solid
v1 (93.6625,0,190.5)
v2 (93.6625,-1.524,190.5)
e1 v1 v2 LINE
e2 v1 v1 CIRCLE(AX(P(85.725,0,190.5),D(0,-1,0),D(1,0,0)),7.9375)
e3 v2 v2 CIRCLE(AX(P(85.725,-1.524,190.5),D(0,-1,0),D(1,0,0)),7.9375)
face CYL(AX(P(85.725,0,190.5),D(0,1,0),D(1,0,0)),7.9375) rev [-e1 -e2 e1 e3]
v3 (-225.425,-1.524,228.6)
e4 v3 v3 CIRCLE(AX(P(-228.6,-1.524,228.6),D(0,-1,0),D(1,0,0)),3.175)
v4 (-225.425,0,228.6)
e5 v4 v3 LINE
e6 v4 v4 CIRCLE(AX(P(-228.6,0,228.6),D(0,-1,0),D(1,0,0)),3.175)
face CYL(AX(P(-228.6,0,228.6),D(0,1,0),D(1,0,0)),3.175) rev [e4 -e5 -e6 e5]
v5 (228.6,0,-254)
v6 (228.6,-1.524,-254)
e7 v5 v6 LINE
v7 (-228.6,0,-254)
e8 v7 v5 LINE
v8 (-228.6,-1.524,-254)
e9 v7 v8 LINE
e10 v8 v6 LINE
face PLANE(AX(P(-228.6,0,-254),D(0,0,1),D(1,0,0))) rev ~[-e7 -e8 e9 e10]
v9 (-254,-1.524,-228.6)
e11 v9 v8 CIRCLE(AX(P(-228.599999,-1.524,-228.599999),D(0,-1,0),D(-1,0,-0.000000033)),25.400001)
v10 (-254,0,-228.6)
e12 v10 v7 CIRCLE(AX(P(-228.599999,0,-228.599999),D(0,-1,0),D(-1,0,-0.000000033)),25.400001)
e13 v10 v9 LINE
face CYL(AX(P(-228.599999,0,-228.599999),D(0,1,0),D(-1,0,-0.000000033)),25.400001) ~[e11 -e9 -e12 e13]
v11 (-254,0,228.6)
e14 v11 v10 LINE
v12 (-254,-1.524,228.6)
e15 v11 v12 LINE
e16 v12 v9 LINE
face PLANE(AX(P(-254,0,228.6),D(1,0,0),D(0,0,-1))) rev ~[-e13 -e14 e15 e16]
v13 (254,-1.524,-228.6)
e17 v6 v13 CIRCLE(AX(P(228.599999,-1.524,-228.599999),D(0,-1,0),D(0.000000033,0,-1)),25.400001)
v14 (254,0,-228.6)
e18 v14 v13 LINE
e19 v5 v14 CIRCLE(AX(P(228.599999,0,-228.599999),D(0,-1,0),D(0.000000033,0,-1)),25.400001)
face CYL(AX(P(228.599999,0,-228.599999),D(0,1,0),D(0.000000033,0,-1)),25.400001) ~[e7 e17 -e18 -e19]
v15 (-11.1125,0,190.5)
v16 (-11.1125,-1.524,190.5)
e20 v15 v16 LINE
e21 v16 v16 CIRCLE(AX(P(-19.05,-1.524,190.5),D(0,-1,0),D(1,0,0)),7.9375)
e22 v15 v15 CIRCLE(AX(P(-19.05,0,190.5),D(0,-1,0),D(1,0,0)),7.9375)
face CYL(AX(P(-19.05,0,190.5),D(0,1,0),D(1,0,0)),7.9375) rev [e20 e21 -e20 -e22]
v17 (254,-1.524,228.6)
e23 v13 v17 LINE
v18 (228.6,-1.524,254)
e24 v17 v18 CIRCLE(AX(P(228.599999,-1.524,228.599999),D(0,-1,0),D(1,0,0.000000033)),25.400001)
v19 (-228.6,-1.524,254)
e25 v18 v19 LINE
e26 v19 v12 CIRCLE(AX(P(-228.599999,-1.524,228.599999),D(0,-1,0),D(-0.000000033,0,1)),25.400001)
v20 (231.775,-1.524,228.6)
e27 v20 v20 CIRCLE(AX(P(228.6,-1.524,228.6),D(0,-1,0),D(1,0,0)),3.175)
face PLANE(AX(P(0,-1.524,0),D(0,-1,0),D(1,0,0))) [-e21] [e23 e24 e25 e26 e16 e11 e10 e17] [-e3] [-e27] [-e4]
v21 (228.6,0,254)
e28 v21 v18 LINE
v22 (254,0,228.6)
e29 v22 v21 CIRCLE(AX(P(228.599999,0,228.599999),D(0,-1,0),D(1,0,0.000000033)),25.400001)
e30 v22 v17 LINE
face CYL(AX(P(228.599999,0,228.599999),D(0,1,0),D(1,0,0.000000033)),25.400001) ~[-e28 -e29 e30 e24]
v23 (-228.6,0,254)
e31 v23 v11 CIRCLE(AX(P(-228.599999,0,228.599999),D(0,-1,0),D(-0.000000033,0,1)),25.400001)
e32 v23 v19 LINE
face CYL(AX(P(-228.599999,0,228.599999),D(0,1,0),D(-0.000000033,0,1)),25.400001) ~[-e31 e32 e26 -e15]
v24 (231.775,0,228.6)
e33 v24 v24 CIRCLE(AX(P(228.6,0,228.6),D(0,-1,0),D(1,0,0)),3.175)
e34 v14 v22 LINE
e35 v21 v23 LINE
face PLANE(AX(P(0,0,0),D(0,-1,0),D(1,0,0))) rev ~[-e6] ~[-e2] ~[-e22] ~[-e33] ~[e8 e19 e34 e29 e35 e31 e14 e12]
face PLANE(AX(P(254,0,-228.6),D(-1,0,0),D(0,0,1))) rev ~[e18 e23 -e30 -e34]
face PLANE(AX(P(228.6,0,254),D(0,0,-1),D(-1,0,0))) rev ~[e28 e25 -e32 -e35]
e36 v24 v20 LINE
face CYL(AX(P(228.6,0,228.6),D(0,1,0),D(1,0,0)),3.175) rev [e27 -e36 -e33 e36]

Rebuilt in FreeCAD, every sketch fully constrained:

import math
import FreeCAD as App
import Part
import Sketcher
Q = App.Units.Quantity

doc = App.newDocument("Part")
body = doc.addObject("PartDesign::Body", "Body")

# Sketch on XZ plane
sketch1 = body.newObject("Sketcher::SketchObject", "Sketch")
sketch1.AttachmentSupport = (doc.getObject("XZ_Plane"), [""])
sketch1.MapMode = "FlatFace"
sketch1.addGeometry(Part.ArcOfCircle(Part.Circle(App.Vector(228.6, 228.6, 0), App.Vector(0, 0, 1), 25.4), math.radians(0), math.radians(90)), False)
sketch1.addGeometry(Part.LineSegment(App.Vector(228.6, 254, 0), App.Vector(-228.6, 254, 0)), False)
sketch1.addGeometry(Part.ArcOfCircle(Part.Circle(App.Vector(-228.6, 228.6, 0), App.Vector(0, 0, 1), 25.4), math.radians(90), math.radians(180)), False)
sketch1.addGeometry(Part.LineSegment(App.Vector(-254, 228.6, 0), App.Vector(-254, -228.6, 0)), False)
sketch1.addGeometry(Part.ArcOfCircle(Part.Circle(App.Vector(-228.6, -228.6, 0), App.Vector(0, 0, 1), 25.4), math.radians(-180), math.radians(-90)), False)
sketch1.addGeometry(Part.LineSegment(App.Vector(-228.6, -254, 0), App.Vector(228.6, -254, 0)), False)
sketch1.addGeometry(Part.ArcOfCircle(Part.Circle(App.Vector(228.6, -228.6, 0), App.Vector(0, 0, 1), 25.4), math.radians(-90), math.radians(0)), False)
sketch1.addGeometry(Part.LineSegment(App.Vector(254, -228.6, 0), App.Vector(254, 228.6, 0)), False)
sketch1.addGeometry(Part.Circle(App.Vector(-19.1, 190.5, 0), App.Vector(0, 0, 1), 7.9), False)
sketch1.addGeometry(Part.Circle(App.Vector(85.7, 190.5, 0), App.Vector(0, 0, 1), 7.9), False)
sketch1.addGeometry(Part.Circle(App.Vector(-228.6, 228.6, 0), App.Vector(0, 0, 1), 3.2), False)
sketch1.addGeometry(Part.Circle(App.Vector(228.6, 228.6, 0), App.Vector(0, 0, 1), 3.2), False)
sketch1.addConstraint(Sketcher.Constraint("Tangent", 0, 2, 1, 1))
sketch1.addConstraint(Sketcher.Constraint("Tangent", 1, 2, 2, 1))
sketch1.addConstraint(Sketcher.Constraint("Tangent", 2, 2, 3, 1))
sketch1.addConstraint(Sketcher.Constraint("Tangent", 3, 2, 4, 1))
sketch1.addConstraint(Sketcher.Constraint("Tangent", 4, 2, 5, 1))
sketch1.addConstraint(Sketcher.Constraint("Tangent", 5, 2, 6, 1))
sketch1.addConstraint(Sketcher.Constraint("Tangent", 6, 2, 7, 1))
sketch1.addConstraint(Sketcher.Constraint("Tangent", 7, 2, 0, 1))
sketch1.addConstraint(Sketcher.Constraint("Horizontal", 1))
sketch1.addConstraint(Sketcher.Constraint("Vertical", 3))
sketch1.addConstraint(Sketcher.Constraint("Horizontal", 5))
sketch1.addConstraint(Sketcher.Constraint("Vertical", 7))
sketch1.addConstraint(Sketcher.Constraint("Coincident", 10, 3, 2, 3))
sketch1.addConstraint(Sketcher.Constraint("Coincident", 11, 3, 0, 3))
sketch1.addConstraint(Sketcher.Constraint("Equal", 0, 2))
sketch1.addConstraint(Sketcher.Constraint("Equal", 2, 4))
sketch1.addConstraint(Sketcher.Constraint("Equal", 4, 6))
sketch1.addConstraint(Sketcher.Constraint("Equal", 8, 9))
sketch1.addConstraint(Sketcher.Constraint("Equal", 10, 11))
sketch1.addConstraint(Sketcher.Constraint("Symmetric", 0, 3, 4, 3, -1, 1))
sketch1.addConstraint(Sketcher.Constraint("Horizontal", 8, 3, 9, 3))
sketch1.addConstraint(Sketcher.Constraint("Equal", 5, 3))
sketch1.addConstraint(Sketcher.Constraint("Radius", 0, Q("1 in")))
sketch1.addConstraint(Sketcher.Constraint("Diameter", 10, Q("0.25 in")))
sketch1.addConstraint(Sketcher.Constraint("DistanceX", 1, 2, 1, 1, Q("18 in")))
sketch1.addConstraint(Sketcher.Constraint("Diameter", 8, Q("0.625 in")))
sketch1.addConstraint(Sketcher.Constraint("DistanceY", -1, 1, 8, 3, Q("7.5 in")))
sketch1.addConstraint(Sketcher.Constraint("DistanceX", 8, 3, -1, 1, Q("0.75 in")))
sketch1.addConstraint(Sketcher.Constraint("DistanceX", -1, 1, 9, 3, Q("3.375 in")))
pad1 = body.newObject("PartDesign::Pad", "Pad")
pad1.Profile = sketch1
pad1.Length = Q("0.06 in")

doc.recompute()
